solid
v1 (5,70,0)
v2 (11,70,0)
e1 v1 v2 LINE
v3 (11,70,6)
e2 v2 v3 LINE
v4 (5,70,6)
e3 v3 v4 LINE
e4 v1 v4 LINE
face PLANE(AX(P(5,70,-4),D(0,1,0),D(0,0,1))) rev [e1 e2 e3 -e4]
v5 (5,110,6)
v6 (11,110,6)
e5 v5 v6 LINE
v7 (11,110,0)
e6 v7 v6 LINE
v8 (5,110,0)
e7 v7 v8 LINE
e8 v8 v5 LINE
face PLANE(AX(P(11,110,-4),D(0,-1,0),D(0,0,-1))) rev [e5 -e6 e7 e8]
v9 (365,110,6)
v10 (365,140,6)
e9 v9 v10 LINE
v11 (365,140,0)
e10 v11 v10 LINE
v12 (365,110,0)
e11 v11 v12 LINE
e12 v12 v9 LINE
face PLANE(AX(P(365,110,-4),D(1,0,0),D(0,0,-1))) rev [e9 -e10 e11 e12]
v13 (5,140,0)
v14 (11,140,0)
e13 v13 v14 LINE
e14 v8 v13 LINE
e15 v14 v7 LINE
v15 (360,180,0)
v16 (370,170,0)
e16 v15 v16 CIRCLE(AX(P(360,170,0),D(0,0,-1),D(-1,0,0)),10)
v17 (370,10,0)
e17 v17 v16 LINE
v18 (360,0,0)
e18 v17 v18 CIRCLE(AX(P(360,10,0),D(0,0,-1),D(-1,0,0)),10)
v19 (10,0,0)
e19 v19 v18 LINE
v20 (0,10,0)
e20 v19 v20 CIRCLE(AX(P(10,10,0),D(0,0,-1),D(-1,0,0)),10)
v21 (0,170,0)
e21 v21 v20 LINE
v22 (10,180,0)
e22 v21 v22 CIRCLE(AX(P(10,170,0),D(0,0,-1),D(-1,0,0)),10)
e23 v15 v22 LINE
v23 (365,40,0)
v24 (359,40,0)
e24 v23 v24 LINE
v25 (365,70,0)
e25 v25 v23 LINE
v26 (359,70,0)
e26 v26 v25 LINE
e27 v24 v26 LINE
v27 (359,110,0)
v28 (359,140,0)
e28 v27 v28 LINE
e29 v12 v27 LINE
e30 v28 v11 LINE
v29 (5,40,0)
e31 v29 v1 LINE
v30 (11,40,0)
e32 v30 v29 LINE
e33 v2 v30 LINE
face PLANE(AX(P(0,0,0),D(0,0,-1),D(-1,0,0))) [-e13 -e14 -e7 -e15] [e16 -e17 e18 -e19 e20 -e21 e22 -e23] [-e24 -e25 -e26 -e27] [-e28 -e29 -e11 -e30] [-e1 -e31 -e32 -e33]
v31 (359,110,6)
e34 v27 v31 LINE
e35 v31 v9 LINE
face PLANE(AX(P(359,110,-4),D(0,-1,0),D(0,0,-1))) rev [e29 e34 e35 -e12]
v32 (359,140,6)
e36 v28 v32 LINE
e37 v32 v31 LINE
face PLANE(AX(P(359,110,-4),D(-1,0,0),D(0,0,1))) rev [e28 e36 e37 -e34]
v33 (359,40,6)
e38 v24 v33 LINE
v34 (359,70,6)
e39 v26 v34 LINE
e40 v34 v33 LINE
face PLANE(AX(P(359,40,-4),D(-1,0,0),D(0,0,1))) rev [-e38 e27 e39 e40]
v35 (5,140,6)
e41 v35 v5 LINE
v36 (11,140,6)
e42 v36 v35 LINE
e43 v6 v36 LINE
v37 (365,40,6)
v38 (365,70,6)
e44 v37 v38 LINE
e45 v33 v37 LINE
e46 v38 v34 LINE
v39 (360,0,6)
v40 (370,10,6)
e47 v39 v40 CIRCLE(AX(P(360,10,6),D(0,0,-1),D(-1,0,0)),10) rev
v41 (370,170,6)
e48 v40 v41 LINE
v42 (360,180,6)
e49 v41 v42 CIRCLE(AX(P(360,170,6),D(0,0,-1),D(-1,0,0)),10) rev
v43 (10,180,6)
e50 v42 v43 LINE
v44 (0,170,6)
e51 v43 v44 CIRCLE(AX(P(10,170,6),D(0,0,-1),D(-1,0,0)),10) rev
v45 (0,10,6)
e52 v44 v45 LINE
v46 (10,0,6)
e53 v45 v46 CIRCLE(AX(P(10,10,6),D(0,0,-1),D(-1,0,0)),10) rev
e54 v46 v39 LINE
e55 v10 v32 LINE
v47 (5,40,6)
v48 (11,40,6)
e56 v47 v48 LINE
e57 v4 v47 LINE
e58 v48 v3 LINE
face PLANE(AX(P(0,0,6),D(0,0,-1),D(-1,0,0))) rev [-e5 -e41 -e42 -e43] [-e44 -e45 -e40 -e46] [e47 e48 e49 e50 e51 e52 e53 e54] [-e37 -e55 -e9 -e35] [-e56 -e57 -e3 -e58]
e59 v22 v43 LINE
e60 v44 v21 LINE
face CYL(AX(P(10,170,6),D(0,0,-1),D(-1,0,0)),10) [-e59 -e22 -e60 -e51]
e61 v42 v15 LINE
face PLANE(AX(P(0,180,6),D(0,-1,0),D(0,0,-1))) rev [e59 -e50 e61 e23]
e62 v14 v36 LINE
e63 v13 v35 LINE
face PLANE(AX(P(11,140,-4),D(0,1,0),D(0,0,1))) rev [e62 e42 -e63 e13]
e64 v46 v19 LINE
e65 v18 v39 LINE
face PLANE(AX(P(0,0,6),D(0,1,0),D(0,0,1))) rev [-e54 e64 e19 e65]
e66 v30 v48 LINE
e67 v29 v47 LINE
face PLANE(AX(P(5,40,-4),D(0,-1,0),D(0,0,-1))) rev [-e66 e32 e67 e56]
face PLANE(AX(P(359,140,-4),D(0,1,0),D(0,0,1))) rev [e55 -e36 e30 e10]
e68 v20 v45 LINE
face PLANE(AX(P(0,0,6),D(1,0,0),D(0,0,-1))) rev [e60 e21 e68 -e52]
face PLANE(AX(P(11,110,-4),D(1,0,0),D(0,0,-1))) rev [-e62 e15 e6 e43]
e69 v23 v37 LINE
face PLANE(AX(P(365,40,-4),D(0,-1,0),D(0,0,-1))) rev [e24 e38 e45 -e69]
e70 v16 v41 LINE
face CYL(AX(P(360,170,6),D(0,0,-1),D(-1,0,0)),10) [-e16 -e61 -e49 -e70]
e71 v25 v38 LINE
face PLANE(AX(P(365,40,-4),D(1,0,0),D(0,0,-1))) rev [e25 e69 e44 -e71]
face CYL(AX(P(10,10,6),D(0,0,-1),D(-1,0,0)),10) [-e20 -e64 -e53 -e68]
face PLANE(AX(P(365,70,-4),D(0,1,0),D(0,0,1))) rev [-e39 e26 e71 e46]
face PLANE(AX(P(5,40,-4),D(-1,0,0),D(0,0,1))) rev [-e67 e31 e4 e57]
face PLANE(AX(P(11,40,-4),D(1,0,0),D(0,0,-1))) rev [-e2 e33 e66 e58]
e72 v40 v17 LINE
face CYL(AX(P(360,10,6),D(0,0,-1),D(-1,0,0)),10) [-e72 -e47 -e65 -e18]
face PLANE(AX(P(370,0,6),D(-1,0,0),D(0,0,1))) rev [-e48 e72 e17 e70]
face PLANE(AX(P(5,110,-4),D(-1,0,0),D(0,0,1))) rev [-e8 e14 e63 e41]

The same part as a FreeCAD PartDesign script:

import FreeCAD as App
import Part
import Sketcher
from FreeCAD import Vector
Q = App.Units.Quantity


def edges_at(feature, points):
    """Names of the edges that pass closest to the given points."""
    edges = feature.Shape.Edges
    near = lambda p: min(range(len(edges)), key=lambda i: edges[i].distToShape(Part.Vertex(*p))[0])
    return sorted({f"Edge{near(p) + 1}" for p in points})


def add_polygon(sketch, points):
    """Adds a closed chain of lines whose ends are joined by coincident constraints."""
    first, n = sketch.GeometryCount, len(points)
    for a, b in zip(points, points[1:] + points[:1]):
        sketch.addGeometry(Part.LineSegment(App.Vector(*a, 0), App.Vector(*b, 0)), False)
    for i in range(n):
        sketch.addConstraint(Sketcher.Constraint("Coincident", first + i, 2, first + (i + 1) % n, 1))

doc = App.newDocument("Part")
params = doc.addObject("Spreadsheet::Sheet", "Params")
for row, (alias, value) in enumerate([
    ("sketch1_width", "370 mm"),
    ("sketch1_height", "180 mm"),
    ("pad1_length", "6 mm"),
    ("sketch2_width", "6 mm"),
    ("sketch2_height", "30 mm"),
    ("pocket1_length", "10 mm"),
    ("fillet_radius", "10 mm"),
], start=1):
    params.set(f"A{row}", alias)
    params.set(f"B{row}", "=" + value)
    params.setAlias(f"B{row}", alias)

body = doc.addObject("PartDesign::Body", "Body")

# Sketch on XY plane
sketch1 = body.newObject("Sketcher::SketchObject", "Sketch")
sketch1.AttachmentSupport = (doc.getObject("XY_Plane"), [""])
sketch1.MapMode = "FlatFace"
add_polygon(sketch1, [(0, 180), (0, 0), (370, 0), (370, 180)])  # lines 0-3
sketch1.addConstraint([
    Sketcher.Constraint("Vertical", 0),
    Sketcher.Constraint("Horizontal", 1),
    Sketcher.Constraint("Vertical", 2),
    Sketcher.Constraint("Horizontal", 3),
    Sketcher.Constraint("Coincident", 0, 2, -1, 1),
    Sketcher.Constraint("DistanceX", 1, 1, 1, 2, Q("370 mm")),
    Sketcher.Constraint("DistanceY", 0, 2, 0, 1, Q("180 mm")),
])
sketch1.setExpression("Constraints[9]", "Params.sketch1_width")
sketch1.setExpression("Constraints[10]", "Params.sketch1_height")
pad1 = body.newObject("PartDesign::Pad", "Pad")
pad1.Profile = sketch1
pad1.setExpression("Length", "Params.pad1_length")

# Sketch on XY plane
sketch2 = body.newObject("Sketcher::SketchObject", "Sketch001")
sketch2.AttachmentSupport = (doc.getObject("XY_Plane"), [""])
sketch2.MapMode = "FlatFace"
sketch2.AttachmentOffset = App.Placement(Vector(0, 0, 6), App.Rotation())
add_polygon(sketch2, [(5, 70), (5, 40), (11, 40), (11, 70)])  # lines 0-3
add_polygon(sketch2, [(5, 140), (5, 110), (11, 110), (11, 140)])  # lines 4-7
add_polygon(sketch2, [(359, 140), (359, 110), (365, 110), (365, 140)])  # lines 8-11
add_polygon(sketch2, [(359, 70), (359, 40), (365, 40), (365, 70)])  # lines 12-15
sketch2.addConstraint([
    Sketcher.Constraint("Vertical", 0),
    Sketcher.Constraint("Horizontal", 1),
    Sketcher.Constraint("Vertical", 2),
    Sketcher.Constraint("Horizontal", 3),
    Sketcher.Constraint("Vertical", 4),
    Sketcher.Constraint("Horizontal", 5),
    Sketcher.Constraint("Vertical", 6),
    Sketcher.Constraint("Horizontal", 7),
    Sketcher.Constraint("Vertical", 8),
    Sketcher.Constraint("Horizontal", 9),
    Sketcher.Constraint("Vertical", 10),
    Sketcher.Constraint("Horizontal", 11),
    Sketcher.Constraint("Vertical", 12),
    Sketcher.Constraint("Horizontal", 13),
    Sketcher.Constraint("Vertical", 14),
    Sketcher.Constraint("Horizontal", 15),
    Sketcher.Constraint("Horizontal", 5, 2, 8, 2),
    Sketcher.Constraint("Horizontal", 7, 2, 10, 2),
    Sketcher.Constraint("Horizontal", 1, 2, 12, 2),
    Sketcher.Constraint("Horizontal", 3, 2, 14, 2),
    Sketcher.Constraint("Vertical", 3, 2, 4, 2),
    Sketcher.Constraint("Vertical", 2, 2, 5, 2),
    Sketcher.Constraint("Vertical", 11, 2, 12, 2),
    Sketcher.Constraint("Vertical", 10, 2, 13, 2),
    Sketcher.Constraint("Equal", 7, 9),
    Sketcher.Constraint("Equal", 2, 4),
    Sketcher.Constraint("DistanceX", 1, 1, 1, 2, Q("6 mm")),
    Sketcher.Constraint("DistanceY", 0, 2, 0, 1, Q("30 mm")),
    Sketcher.Constraint("DistanceX", -1, 1, 0, 2, Q("5 mm")),
    Sketcher.Constraint("DistanceY", -1, 1, 0, 2, Q("40 mm")),
    Sketcher.Constraint("DistanceY", -1, 1, 4, 2, Q("110 mm")),
    Sketcher.Constraint("DistanceX", -1, 1, 8, 2, Q("359 mm")),
])
sketch2.setExpression("Constraints[42]", "Params.sketch2_width")
sketch2.setExpression("Constraints[43]", "Params.sketch2_height")
pocket1 = body.newObject("PartDesign::Pocket", "Pocket")
pocket1.Profile = sketch2
pocket1.setExpression("Length", "Params.pocket1_length")
doc.recompute()

fillet = body.newObject("PartDesign::Fillet", "Fillet")
fillet.Base = (pocket1, edges_at(pocket1, [
    (0, 180, 3),
    (370, 180, 3),
    (370, 0, 3),
    (0, 0, 3),
]))
fillet.setExpression("Radius", "Params.fillet_radius")

doc.recompute()
